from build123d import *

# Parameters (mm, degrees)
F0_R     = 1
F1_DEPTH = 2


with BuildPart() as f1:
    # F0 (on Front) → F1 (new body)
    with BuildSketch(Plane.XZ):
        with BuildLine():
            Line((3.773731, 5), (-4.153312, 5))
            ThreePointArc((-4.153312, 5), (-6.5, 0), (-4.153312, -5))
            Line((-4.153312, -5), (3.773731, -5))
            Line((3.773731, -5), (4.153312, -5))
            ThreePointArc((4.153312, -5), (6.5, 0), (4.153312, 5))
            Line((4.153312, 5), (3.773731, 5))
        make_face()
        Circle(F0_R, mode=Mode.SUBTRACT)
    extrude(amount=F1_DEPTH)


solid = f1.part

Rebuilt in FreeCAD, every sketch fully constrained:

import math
import FreeCAD as App
import Part
import Sketcher

V = App.Vector
Q = App.Units.Quantity

doc = App.newDocument("Part")
body = doc.addObject("PartDesign::Body", "Body")

# Sketch on XZ plane
sketch1 = doc.addObject("Sketcher::SketchObject", "Sketch")
body.addObject(sketch1)
sketch1.AttachmentSupport = (doc.XZ_Plane, [""])
sketch1.MapMode = "FlatFace"
sketch1.addGeometry(Part.ArcOfCircle(Part.Circle(V(0, 0, 0), V(0, 0, 1), 6.5), math.radians(130), math.radians(230)), False)
sketch1.addGeometry(Part.LineSegment(V(-4.2, -5, 0), V(4.2, -5, 0)), False)
sketch1.addGeometry(Part.ArcOfCircle(Part.Circle(V(0, 0, 0), V(0, 0, 1), 6.5), math.radians(-50), math.radians(50)), False)
sketch1.addGeometry(Part.LineSegment(V(4.2, 5, 0), V(-4.2, 5, 0)), False)
sketch1.addGeometry(Part.Circle(V(0, 0, 0), V(0, 0, 1), 1), False)
sketch1.addConstraint(Sketcher.Constraint("Coincident", 0, 2, 1, 1))
sketch1.addConstraint(Sketcher.Constraint("Coincident", 1, 2, 2, 1))
sketch1.addConstraint(Sketcher.Constraint("Coincident", 2, 2, 3, 1))
sketch1.addConstraint(Sketcher.Constraint("Coincident", 3, 2, 0, 1))
sketch1.addConstraint(Sketcher.Constraint("Horizontal", 1))
sketch1.addConstraint(Sketcher.Constraint("Horizontal", 3))
sketch1.addConstraint(Sketcher.Constraint("Coincident", 0, 3, -1, 1))
sketch1.addConstraint(Sketcher.Constraint("Coincident", 2, 3, -1, 1))
sketch1.addConstraint(Sketcher.Constraint("Coincident", 4, 3, -1, 1))
sketch1.addConstraint(Sketcher.Constraint("Equal", 0, 2))
sketch1.addConstraint(Sketcher.Constraint("Vertical", 1, 2, 2, 2))
sketch1.addConstraint(Sketcher.Constraint("Diameter", 4, Q("2 mm")))
sketch1.addConstraint(Sketcher.Constraint("Radius", 0, Q("6.5 mm")))
sketch1.addConstraint(Sketcher.Constraint("DistanceY", 0, 2, -1, 1, Q("5 mm")))
pad1 = doc.addObject("PartDesign::Pad", "Pad")
body.addObject(pad1)
pad1.Profile = sketch1
pad1.Length = 2

doc.recompute()
